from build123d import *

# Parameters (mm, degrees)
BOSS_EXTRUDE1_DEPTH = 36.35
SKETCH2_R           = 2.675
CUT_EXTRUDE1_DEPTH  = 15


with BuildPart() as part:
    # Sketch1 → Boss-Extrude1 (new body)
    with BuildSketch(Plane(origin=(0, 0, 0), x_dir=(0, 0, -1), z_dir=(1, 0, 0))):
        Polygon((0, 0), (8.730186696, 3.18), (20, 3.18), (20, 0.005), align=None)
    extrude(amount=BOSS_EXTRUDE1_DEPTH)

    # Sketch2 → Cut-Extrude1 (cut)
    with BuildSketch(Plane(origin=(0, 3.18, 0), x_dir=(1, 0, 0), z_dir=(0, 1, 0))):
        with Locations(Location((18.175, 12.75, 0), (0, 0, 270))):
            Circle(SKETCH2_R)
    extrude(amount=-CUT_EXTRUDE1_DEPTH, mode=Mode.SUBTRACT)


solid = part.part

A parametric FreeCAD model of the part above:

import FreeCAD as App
import Part
import Sketcher

V = App.Vector
Q = App.Units.Quantity


def add_polygon(sketch, points):
    """Adds a closed chain of lines whose ends are joined by coincident constraints."""
    first, n = sketch.GeometryCount, len(points)
    for a, b in zip(points, points[1:] + points[:1]):
        sketch.addGeometry(Part.LineSegment(App.Vector(*a, 0), App.Vector(*b, 0)), False)
    for i in range(n):
        sketch.addConstraint(Sketcher.Constraint("Coincident", first + i, 2, first + (i + 1) % n, 1))

doc = App.newDocument("Part")
params = doc.addObject("Spreadsheet::Sheet", "Params")
for row, (alias, value) in enumerate([
    ("sketch1_length", "20.000001 mm"),
    ("pad1_length", "36.35 mm"),
    ("sketch2_diameter", "5.35 mm"),
    ("pocket1_length", "15 mm"),
], start=1):
    params.set(f"A{row}", alias)
    params.set(f"B{row}", "=" + value)
    params.setAlias(f"B{row}", alias)

body = doc.addObject("PartDesign::Body", "Body")

sketch1 = doc.addObject("Sketcher::SketchObject", "Sketch")
body.addObject(sketch1)
sketch1.AttachmentSupport = (doc.YZ_Plane, [""])
sketch1.MapMode = "FlatFace"
add_polygon(sketch1, [(3.2, -8.7), (0, 0), (0, -20), (3.2, -20)])
sketch1.addConstraint(Sketcher.Constraint("Horizontal", 2))
sketch1.addConstraint(Sketcher.Constraint("Vertical", 3))
sketch1.addConstraint(Sketcher.Constraint("Coincident", 0, 2, -1, 1))
sketch1.addConstraint(Sketcher.Constraint("Distance", 1, Q("20.000001 mm")))
sketch1.addConstraint(Sketcher.Constraint("DistanceX", 2, 1, 2, 2, Q("3.175 mm")))
sketch1.addConstraint(Sketcher.Constraint("DistanceX", -1, 1, 2, 2, Q("3.18 mm")))
sketch1.addConstraint(Sketcher.Constraint("DistanceY", 3, 1, 3, 2, Q("11.269813 mm")))
sketch1.setExpression("Constraints[7]", "Params.sketch1_length")
pad1 = doc.addObject("PartDesign::Pad", "Pad")
body.addObject(pad1)
pad1.Profile = sketch1
pad1.setExpression("Length", "Params.pad1_length")

sketch2 = doc.addObject("Sketcher::SketchObject", "Sketch001")
body.addObject(sketch2)
sketch2.AttachmentSupport = (doc.XZ_Plane, [""])
sketch2.MapMode = "FlatFace"
sketch2.AttachmentOffset = App.Placement(V(0, 0, -3.18), App.Rotation())
sketch2.addGeometry(Part.Circle(V(18.2, -12.8, 0), V(0, 0, 1), 2.7), False)
sketch2.addConstraint(Sketcher.Constraint("Diameter", 0, Q("5.35 mm")))
sketch2.addConstraint(Sketcher.Constraint("DistanceY", 0, 3, -1, 1, Q("12.75 mm")))
sketch2.addConstraint(Sketcher.Constraint("DistanceX", -1, 1, 0, 3, Q("18.175 mm")))
sketch2.setExpression("Constraints[0]", "Params.sketch2_diameter")
pocket1 = doc.addObject("PartDesign::Pocket", "Pocket")
body.addObject(pocket1)
pocket1.Profile = sketch2
pocket1.setExpression("Length", "Params.pocket1_length")
pocket1.Reversed = True

doc.recompute()
